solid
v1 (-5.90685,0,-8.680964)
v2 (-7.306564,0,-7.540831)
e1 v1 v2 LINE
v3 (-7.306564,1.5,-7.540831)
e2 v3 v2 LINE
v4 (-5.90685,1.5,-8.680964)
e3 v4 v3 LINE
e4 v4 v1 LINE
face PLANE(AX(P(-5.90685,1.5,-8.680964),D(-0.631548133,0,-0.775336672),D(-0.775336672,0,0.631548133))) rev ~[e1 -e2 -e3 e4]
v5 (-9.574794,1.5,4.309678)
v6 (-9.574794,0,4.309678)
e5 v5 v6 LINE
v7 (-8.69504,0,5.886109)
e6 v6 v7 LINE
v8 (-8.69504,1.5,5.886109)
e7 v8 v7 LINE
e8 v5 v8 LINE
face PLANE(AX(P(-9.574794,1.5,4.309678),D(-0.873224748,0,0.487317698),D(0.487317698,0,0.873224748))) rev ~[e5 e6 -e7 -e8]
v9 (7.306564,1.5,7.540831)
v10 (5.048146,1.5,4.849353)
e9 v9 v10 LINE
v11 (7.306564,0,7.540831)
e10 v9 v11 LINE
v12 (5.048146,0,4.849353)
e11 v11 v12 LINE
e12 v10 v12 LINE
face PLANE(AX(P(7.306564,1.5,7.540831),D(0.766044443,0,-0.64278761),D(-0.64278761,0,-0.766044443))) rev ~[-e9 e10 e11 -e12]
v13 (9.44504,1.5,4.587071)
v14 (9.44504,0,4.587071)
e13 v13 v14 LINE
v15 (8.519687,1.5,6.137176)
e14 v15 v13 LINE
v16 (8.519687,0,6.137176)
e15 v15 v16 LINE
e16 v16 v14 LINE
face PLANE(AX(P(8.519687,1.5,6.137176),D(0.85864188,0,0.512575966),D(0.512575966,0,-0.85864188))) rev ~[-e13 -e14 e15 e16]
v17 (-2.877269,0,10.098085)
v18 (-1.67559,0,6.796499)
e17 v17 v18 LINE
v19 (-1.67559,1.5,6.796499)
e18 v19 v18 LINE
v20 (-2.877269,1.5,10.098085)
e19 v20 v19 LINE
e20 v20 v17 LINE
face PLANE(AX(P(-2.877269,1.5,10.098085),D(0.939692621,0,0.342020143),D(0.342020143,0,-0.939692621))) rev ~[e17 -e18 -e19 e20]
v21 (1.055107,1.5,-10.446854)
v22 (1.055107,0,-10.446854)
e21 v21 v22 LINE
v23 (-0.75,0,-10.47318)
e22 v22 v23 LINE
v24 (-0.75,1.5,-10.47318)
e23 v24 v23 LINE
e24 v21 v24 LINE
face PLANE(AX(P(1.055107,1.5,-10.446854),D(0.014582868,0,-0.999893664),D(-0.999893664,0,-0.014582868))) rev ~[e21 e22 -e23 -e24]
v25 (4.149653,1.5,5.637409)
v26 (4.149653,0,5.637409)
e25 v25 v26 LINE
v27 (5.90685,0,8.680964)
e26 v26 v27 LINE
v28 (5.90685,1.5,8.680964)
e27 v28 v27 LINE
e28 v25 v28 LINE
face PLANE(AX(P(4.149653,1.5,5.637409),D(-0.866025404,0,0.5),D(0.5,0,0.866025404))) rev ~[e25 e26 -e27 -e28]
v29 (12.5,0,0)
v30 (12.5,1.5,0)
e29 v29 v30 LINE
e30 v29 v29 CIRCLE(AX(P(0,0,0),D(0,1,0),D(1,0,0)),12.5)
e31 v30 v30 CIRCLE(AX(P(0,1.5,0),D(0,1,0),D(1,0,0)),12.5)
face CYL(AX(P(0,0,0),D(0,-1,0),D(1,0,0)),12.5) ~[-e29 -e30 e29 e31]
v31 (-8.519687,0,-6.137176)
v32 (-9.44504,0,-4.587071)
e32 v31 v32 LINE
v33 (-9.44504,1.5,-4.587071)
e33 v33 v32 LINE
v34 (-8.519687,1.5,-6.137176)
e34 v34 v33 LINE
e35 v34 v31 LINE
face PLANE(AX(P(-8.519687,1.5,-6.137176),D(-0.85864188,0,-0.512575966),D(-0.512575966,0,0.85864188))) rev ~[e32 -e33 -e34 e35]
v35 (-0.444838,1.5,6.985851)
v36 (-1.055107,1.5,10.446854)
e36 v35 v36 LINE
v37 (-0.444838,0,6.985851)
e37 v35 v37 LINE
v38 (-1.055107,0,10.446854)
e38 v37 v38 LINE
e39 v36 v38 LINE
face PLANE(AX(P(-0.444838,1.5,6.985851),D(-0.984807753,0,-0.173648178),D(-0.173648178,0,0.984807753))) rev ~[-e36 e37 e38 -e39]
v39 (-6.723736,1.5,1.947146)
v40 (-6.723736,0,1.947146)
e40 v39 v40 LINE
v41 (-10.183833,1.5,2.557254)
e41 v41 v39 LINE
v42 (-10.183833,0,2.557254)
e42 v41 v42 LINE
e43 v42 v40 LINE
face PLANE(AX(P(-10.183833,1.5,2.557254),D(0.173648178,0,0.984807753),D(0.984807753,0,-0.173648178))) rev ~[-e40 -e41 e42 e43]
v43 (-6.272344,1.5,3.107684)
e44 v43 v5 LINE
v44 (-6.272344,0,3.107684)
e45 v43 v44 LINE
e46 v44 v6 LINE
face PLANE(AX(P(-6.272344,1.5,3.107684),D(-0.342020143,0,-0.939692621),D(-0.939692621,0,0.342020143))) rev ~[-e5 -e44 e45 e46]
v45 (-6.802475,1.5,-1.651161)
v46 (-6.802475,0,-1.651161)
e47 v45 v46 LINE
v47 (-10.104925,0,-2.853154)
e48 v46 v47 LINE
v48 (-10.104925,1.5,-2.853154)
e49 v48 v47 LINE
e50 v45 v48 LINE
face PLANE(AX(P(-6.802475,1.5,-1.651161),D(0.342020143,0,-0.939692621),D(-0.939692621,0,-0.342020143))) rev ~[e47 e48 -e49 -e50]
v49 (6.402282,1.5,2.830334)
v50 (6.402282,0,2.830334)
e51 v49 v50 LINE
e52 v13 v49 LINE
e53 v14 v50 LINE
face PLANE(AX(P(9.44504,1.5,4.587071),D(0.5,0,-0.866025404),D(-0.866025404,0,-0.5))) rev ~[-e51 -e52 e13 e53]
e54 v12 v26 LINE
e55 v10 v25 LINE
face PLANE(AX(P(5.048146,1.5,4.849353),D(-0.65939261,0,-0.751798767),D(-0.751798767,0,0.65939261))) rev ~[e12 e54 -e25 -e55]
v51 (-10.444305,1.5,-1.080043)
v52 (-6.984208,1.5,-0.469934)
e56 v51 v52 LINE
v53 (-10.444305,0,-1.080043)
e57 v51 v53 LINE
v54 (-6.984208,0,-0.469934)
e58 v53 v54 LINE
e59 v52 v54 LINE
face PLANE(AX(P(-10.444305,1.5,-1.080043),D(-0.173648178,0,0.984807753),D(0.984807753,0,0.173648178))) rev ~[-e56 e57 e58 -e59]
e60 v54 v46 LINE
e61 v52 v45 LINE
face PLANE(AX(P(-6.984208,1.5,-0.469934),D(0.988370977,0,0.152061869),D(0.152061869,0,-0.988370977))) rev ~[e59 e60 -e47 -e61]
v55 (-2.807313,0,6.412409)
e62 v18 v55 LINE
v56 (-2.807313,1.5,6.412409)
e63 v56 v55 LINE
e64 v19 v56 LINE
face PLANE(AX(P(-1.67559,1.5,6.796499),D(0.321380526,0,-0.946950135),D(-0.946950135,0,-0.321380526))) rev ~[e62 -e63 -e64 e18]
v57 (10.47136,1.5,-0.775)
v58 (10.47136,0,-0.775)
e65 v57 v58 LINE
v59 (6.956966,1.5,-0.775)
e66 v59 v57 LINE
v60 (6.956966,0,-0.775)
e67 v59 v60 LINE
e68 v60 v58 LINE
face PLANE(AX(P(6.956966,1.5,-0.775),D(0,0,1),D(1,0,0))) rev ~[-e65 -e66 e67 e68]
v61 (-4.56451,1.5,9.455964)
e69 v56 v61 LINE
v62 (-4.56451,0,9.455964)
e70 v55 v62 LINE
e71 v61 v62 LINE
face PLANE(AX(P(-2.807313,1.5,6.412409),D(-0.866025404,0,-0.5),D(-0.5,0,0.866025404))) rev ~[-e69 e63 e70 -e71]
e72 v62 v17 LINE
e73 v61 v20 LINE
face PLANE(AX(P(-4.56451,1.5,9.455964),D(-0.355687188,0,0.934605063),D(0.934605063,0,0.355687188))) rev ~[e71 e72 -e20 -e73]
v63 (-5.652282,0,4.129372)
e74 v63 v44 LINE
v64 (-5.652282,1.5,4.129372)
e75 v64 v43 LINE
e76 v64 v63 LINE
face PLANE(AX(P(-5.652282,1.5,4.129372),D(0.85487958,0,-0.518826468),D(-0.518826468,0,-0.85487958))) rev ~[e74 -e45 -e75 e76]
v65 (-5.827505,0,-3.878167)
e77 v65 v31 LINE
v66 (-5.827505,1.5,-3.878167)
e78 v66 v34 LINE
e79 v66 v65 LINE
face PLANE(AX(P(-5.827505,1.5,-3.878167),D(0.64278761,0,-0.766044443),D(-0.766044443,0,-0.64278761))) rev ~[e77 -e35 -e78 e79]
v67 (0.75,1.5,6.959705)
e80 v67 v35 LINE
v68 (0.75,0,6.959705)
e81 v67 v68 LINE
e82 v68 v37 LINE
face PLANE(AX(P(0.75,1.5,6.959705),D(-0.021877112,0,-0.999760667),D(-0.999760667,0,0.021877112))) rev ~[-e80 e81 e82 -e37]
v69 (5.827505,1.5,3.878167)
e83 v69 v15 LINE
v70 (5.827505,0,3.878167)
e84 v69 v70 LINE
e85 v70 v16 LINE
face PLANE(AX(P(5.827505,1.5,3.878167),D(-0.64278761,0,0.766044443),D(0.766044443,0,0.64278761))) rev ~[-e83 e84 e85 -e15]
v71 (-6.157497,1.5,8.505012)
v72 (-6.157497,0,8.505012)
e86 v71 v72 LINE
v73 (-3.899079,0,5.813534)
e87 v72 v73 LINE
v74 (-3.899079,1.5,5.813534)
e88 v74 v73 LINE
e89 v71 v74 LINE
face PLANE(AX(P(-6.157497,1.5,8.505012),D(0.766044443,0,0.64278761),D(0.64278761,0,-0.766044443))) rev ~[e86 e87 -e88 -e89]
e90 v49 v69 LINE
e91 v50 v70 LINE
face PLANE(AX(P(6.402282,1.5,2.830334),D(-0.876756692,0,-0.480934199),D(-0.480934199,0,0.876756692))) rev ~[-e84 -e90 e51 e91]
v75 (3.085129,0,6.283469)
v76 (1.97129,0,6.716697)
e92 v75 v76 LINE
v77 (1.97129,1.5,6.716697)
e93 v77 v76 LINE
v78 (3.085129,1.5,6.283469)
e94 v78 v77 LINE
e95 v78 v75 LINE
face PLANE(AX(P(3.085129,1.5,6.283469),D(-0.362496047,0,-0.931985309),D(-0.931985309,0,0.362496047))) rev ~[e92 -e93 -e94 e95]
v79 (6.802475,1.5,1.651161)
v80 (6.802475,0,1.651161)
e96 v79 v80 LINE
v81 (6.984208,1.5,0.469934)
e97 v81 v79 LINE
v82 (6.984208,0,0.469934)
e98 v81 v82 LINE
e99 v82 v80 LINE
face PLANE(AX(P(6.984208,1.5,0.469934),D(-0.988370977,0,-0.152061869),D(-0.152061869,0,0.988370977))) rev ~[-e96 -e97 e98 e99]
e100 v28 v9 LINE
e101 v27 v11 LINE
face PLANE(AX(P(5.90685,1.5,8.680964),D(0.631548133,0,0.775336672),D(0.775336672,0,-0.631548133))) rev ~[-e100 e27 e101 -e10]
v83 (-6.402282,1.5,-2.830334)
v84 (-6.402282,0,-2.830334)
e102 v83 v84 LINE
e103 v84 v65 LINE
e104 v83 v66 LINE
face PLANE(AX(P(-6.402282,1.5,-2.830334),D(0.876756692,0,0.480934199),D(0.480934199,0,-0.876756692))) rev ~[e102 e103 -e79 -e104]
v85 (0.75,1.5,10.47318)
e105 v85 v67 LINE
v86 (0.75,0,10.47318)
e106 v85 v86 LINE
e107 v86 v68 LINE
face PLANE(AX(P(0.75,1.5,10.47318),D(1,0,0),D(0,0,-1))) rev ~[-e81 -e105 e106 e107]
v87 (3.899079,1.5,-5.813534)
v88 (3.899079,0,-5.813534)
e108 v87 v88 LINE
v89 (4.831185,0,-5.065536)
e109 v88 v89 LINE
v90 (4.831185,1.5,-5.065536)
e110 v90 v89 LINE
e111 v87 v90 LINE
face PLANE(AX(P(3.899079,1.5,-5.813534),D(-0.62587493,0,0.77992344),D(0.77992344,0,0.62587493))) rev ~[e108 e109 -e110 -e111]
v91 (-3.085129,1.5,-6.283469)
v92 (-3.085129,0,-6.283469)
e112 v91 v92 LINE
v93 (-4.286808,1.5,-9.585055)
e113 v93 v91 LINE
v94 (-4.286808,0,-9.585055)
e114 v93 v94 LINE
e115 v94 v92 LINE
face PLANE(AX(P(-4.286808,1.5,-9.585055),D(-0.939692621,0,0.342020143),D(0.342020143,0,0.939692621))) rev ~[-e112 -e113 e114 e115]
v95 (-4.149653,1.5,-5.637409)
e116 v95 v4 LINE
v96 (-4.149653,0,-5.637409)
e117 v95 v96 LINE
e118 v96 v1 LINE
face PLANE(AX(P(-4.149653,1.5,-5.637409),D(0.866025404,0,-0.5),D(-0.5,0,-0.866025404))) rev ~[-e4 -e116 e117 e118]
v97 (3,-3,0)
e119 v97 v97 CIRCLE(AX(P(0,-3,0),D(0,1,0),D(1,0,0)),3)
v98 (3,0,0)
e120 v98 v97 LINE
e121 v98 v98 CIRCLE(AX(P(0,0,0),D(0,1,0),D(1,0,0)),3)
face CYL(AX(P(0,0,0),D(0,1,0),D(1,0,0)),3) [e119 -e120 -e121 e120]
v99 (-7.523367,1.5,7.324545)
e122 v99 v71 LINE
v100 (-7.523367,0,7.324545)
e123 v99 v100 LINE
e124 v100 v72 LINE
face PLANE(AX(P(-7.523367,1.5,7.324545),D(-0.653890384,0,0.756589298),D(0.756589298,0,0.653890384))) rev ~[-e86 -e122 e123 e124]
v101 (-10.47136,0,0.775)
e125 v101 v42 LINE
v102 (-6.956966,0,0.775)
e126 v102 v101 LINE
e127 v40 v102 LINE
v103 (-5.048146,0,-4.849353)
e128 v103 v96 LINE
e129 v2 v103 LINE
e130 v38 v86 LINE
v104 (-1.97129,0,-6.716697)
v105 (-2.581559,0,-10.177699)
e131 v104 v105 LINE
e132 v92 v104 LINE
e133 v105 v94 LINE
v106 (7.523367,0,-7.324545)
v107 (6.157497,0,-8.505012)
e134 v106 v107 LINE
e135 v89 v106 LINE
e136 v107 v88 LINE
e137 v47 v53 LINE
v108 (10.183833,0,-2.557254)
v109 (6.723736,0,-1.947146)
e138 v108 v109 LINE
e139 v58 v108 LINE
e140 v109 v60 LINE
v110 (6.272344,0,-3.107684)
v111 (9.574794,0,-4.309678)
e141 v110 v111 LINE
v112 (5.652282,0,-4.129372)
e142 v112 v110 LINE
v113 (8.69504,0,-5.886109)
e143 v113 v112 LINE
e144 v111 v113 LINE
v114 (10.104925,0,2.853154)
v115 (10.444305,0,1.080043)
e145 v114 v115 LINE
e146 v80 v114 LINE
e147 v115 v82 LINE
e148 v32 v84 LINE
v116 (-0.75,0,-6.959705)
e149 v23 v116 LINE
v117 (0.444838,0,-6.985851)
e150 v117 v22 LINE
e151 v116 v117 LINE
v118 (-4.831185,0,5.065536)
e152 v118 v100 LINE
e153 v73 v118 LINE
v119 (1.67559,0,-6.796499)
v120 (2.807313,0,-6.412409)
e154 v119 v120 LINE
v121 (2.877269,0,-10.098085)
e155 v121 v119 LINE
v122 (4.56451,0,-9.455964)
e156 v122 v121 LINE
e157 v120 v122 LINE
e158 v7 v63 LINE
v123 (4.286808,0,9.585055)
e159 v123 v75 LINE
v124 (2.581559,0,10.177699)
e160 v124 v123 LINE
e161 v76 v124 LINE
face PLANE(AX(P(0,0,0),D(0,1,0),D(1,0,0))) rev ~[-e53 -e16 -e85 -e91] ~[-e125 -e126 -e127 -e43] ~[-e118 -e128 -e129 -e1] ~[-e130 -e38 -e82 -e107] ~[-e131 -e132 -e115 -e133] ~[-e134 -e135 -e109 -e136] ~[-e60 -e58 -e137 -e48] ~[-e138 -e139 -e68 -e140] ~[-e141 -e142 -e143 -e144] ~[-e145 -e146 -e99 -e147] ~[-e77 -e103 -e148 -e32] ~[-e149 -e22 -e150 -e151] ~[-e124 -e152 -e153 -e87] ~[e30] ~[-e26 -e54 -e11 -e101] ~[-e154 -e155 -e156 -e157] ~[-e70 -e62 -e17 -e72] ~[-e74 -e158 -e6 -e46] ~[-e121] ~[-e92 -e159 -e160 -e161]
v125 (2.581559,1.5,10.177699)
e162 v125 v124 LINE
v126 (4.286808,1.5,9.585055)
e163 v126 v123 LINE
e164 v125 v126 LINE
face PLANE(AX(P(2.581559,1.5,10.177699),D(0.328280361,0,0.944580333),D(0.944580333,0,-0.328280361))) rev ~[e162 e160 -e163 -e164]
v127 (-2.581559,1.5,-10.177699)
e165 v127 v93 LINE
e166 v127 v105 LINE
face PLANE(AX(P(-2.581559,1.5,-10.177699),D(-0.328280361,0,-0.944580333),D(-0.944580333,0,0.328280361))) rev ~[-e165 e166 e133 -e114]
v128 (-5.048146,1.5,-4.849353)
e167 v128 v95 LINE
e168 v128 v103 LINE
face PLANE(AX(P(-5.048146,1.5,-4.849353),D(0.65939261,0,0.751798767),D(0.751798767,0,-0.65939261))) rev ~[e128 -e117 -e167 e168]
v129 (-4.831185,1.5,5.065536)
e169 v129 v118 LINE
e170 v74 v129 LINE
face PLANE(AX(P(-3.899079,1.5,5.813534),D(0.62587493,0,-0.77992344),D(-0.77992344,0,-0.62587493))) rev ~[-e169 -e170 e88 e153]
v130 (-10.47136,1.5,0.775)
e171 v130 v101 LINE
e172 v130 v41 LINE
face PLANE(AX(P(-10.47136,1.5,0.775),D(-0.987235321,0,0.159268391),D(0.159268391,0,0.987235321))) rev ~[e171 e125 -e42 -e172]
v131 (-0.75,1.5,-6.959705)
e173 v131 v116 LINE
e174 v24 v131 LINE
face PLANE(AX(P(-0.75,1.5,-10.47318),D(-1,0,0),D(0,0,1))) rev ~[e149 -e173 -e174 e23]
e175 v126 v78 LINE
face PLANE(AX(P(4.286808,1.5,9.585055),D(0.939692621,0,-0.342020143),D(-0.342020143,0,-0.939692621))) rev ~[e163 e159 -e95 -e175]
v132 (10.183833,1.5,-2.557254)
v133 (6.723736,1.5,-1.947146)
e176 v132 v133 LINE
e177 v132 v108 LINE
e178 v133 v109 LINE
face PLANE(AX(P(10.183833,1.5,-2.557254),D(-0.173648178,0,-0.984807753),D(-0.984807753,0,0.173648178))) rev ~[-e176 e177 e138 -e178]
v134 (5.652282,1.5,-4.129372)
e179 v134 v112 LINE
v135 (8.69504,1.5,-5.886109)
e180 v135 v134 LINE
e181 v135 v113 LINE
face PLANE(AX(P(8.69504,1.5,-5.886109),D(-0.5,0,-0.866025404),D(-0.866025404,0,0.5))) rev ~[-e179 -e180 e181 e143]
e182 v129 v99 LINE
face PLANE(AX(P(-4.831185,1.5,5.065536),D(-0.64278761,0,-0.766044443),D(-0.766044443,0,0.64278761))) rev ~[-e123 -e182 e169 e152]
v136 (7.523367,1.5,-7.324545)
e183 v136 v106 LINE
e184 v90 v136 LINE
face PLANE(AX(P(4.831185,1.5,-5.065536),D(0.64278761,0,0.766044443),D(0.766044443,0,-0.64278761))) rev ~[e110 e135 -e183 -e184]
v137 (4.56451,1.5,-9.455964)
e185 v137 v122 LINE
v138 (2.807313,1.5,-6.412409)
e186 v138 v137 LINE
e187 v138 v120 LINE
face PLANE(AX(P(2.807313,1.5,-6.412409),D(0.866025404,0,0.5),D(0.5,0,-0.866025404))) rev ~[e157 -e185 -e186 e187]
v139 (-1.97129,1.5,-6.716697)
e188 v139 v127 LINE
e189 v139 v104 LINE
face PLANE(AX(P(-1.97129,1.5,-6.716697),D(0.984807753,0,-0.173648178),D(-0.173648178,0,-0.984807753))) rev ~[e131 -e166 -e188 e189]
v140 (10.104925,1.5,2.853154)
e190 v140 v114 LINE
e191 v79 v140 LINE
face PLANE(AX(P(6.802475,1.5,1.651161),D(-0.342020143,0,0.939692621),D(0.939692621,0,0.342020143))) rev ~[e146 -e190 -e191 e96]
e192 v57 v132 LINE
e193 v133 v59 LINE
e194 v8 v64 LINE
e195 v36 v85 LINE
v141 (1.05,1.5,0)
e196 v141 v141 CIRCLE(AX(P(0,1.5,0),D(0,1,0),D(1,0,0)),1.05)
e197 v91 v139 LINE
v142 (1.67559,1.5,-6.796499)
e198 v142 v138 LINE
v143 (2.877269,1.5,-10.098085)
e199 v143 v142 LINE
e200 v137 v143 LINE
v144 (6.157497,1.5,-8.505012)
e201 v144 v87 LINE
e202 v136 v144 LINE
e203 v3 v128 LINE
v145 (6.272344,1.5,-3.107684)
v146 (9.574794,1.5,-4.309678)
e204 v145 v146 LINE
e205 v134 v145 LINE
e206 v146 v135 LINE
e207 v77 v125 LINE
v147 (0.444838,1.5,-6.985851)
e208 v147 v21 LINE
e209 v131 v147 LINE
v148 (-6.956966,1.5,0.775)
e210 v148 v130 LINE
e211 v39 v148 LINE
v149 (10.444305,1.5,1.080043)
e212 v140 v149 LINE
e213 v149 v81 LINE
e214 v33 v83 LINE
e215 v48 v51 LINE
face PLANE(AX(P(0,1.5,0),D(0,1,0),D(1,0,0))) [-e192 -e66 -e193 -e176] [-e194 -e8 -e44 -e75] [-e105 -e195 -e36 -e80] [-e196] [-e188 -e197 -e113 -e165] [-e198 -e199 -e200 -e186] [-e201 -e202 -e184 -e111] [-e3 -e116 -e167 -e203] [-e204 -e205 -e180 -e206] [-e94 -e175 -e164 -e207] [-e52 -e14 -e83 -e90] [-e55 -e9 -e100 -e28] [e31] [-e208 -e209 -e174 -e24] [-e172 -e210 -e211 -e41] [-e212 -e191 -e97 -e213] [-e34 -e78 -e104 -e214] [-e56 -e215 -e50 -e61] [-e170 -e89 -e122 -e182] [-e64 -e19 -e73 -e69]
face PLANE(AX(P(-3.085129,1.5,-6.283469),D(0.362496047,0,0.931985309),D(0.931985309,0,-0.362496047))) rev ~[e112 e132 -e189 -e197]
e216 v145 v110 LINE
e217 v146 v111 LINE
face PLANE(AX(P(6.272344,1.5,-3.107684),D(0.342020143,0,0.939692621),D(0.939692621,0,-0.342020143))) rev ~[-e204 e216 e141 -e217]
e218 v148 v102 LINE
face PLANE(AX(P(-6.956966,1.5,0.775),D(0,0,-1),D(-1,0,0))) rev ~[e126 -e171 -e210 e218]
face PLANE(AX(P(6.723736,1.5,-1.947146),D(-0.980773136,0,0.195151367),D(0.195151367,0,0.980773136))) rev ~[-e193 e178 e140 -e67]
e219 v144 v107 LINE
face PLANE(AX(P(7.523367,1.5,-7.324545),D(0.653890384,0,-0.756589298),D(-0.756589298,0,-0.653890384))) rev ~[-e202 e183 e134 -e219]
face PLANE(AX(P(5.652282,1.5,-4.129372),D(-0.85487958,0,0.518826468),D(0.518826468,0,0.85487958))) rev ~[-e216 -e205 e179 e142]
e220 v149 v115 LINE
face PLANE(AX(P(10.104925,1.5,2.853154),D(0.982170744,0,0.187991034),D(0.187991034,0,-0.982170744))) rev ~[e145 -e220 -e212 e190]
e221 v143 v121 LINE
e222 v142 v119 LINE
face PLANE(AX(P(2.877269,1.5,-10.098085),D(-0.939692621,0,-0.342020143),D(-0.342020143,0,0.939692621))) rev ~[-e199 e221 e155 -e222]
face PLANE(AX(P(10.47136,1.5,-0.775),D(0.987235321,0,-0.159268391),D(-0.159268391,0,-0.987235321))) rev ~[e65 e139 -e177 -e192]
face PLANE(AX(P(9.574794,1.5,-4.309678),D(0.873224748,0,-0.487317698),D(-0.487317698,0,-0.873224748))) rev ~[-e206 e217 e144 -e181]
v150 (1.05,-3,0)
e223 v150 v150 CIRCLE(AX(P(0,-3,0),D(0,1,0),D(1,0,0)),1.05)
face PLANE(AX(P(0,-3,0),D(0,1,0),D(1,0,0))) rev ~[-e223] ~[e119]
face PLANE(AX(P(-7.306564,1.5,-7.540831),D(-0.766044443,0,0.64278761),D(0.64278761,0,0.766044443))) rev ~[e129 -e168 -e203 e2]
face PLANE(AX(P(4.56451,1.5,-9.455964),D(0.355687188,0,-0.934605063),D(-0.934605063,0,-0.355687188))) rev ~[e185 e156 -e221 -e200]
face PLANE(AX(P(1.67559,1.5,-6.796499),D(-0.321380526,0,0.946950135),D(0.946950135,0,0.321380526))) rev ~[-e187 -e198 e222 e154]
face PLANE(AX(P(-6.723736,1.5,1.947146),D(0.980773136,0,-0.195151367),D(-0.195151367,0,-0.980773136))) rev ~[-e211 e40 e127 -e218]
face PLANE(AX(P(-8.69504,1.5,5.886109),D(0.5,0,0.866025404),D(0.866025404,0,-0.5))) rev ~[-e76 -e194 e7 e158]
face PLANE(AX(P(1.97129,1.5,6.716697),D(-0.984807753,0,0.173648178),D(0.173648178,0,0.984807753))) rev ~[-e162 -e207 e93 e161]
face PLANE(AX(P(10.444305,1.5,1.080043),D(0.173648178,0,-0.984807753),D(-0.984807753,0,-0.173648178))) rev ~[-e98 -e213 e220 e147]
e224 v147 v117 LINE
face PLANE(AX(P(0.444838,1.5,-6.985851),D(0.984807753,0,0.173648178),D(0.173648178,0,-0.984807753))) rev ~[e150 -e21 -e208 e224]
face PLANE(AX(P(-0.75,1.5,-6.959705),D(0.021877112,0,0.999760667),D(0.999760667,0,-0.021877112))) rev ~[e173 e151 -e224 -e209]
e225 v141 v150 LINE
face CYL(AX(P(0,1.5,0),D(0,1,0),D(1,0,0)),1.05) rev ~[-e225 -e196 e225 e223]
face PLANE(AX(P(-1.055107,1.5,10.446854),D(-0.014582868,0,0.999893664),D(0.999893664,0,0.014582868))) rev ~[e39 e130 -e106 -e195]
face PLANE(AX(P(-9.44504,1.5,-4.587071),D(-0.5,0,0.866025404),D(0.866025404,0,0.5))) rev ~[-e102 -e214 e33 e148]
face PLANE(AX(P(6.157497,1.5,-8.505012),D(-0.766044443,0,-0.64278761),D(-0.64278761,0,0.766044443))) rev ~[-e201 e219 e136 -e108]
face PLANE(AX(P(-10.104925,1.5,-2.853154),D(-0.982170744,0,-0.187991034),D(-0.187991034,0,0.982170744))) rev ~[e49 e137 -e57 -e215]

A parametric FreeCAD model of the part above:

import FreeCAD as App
import Part
import Sketcher
Q = App.Units.Quantity


def add_polygon(sketch, points):
    """Adds a closed chain of lines whose ends are joined by coincident constraints."""
    first, n = sketch.GeometryCount, len(points)
    for a, b in zip(points, points[1:] + points[:1]):
        sketch.addGeometry(Part.LineSegment(App.Vector(*a, 0), App.Vector(*b, 0)), False)
    for i in range(n):
        sketch.addConstraint(Sketcher.Constraint("Coincident", first + i, 2, first + (i + 1) % n, 1))

doc = App.newDocument("Part")
body = doc.addObject("PartDesign::Body", "Body")

sketch1 = body.newObject("Sketcher::SketchObject", "Sketch")
sketch1.AttachmentSupport = (doc.getObject("XZ_Plane"), [""])
sketch1.MapMode = "FlatFace"
sketch1.addGeometry(Part.Circle(App.Vector(0, 0, 0), App.Vector(0, 0, 1), 12), False)
sketch1.addConstraint(Sketcher.Constraint("Coincident", 0, 3, -1, 1))
sketch1.addConstraint(Sketcher.Constraint("Diameter", 0, Q("25 mm")))
pad1 = body.newObject("PartDesign::Pad", "Pad")
pad1.Profile = sketch1
pad1.Length = 1.5
pad1.Reversed = True

sketch2 = body.newObject("Sketcher::SketchObject", "Sketch001")
sketch2.AttachmentSupport = (doc.getObject("XZ_Plane"), [""])
sketch2.MapMode = "FlatFace"
sketch2.AttachmentOffset = App.Placement(App.Vector(0, 0, -1.5), App.Rotation())
add_polygon(sketch2, [(-0.8, -7), (0.4, -7), (1.1, -10.4), (-0.8, -10.5)])
sketch2.addConstraint(Sketcher.Constraint("Vertical", 3))
sketch2.addConstraint(Sketcher.Constraint("Angle", 1, Q("-80 deg")))
sketch2.addConstraint(Sketcher.Constraint("DistanceX", 2, 2, -1, 1, Q("0.75 mm")))
sketch2.addConstraint(Sketcher.Constraint("Distance", 2, Q("1.805298 mm")))
sketch2.addConstraint(Sketcher.Constraint("DistanceY", 3, 1, 3, 2, Q("3.513475 mm")))
sketch2.addConstraint(Sketcher.Constraint("DistanceX", -1, 1, 0, 2, Q("0.444838 mm")))
sketch2.addConstraint(Sketcher.Constraint("DistanceY", 0, 2, -1, 1, Q("6.985851 mm")))
sketch2.addConstraint(Sketcher.Constraint("DistanceY", 2, 2, -1, 1, Q("10.47318 mm")))
pocket1 = body.newObject("PartDesign::Pocket", "Pocket")
pocket1.Profile = sketch2
pocket1.Length = 2
pocket1.Reversed = True

sketch3 = body.newObject("Sketcher::SketchObject", "Sketch002")
sketch3.AttachmentSupport = (doc.getObject("XZ_Plane"), [""])
sketch3.MapMode = "FlatFace"
sketch3.AttachmentOffset = App.Placement(App.Vector(0, 0, -1.5), App.Rotation())
sketch3.addGeometry(Part.Circle(App.Vector(0, 0, 0), App.Vector(0, 0, 1), 1.1), False)
sketch3.addConstraint(Sketcher.Constraint("Coincident", 0, 3, -1, 1))
sketch3.addConstraint(Sketcher.Constraint("Diameter", 0, Q("2.1 mm")))
pocket2 = body.newObject("PartDesign::Pocket", "Pocket001")
pocket2.Profile = sketch3
pocket2.Length = 22
pocket2.Reversed = True

sketch4 = body.newObject("Sketcher::SketchObject", "Sketch003")
sketch4.AttachmentSupport = (doc.getObject("XZ_Plane"), [""])
sketch4.MapMode = "FlatFace"
sketch4.addGeometry(Part.Circle(App.Vector(0, 0, 0), App.Vector(0, 0, 1), 3), False)
sketch4.addConstraint(Sketcher.Constraint("Coincident", 0, 3, -1, 1))
sketch4.addConstraint(Sketcher.Constraint("Diameter", 0, Q("6 mm")))
pad2 = body.newObject("PartDesign::Pad", "Pad001")
pad2.Profile = sketch4
pad2.Length = 3
doc.recompute()

polarpattern = body.newObject("PartDesign::PolarPattern", "PolarPattern")
polarpattern.Originals = [pocket1]
polarpattern.Axis = (doc.getObject("Y_Axis"), [""])
polarpattern.Angle = 360
polarpattern.Occurrences = 18
body.Tip = polarpattern

sketch5 = body.newObject("Sketcher::SketchObject", "Sketch004")
sketch5.AttachmentSupport = (doc.getObject("XZ_Plane"), [""])
sketch5.MapMode = "FlatFace"
sketch5.AttachmentOffset = App.Placement(App.Vector(0, 0, -1.5), App.Rotation())
sketch5.addGeometry(Part.Circle(App.Vector(0, 0, 0), App.Vector(0, 0, 1), 1.1), False)
sketch5.addConstraint(Sketcher.Constraint("Coincident", 0, 3, -1, 1))
sketch5.addConstraint(Sketcher.Constraint("Diameter", 0, Q("2.1 mm")))
pocket3 = body.newObject("PartDesign::Pocket", "Pocket002")
pocket3.Profile = sketch5
pocket3.Length = 23
pocket3.Reversed = True

doc.recompute()
